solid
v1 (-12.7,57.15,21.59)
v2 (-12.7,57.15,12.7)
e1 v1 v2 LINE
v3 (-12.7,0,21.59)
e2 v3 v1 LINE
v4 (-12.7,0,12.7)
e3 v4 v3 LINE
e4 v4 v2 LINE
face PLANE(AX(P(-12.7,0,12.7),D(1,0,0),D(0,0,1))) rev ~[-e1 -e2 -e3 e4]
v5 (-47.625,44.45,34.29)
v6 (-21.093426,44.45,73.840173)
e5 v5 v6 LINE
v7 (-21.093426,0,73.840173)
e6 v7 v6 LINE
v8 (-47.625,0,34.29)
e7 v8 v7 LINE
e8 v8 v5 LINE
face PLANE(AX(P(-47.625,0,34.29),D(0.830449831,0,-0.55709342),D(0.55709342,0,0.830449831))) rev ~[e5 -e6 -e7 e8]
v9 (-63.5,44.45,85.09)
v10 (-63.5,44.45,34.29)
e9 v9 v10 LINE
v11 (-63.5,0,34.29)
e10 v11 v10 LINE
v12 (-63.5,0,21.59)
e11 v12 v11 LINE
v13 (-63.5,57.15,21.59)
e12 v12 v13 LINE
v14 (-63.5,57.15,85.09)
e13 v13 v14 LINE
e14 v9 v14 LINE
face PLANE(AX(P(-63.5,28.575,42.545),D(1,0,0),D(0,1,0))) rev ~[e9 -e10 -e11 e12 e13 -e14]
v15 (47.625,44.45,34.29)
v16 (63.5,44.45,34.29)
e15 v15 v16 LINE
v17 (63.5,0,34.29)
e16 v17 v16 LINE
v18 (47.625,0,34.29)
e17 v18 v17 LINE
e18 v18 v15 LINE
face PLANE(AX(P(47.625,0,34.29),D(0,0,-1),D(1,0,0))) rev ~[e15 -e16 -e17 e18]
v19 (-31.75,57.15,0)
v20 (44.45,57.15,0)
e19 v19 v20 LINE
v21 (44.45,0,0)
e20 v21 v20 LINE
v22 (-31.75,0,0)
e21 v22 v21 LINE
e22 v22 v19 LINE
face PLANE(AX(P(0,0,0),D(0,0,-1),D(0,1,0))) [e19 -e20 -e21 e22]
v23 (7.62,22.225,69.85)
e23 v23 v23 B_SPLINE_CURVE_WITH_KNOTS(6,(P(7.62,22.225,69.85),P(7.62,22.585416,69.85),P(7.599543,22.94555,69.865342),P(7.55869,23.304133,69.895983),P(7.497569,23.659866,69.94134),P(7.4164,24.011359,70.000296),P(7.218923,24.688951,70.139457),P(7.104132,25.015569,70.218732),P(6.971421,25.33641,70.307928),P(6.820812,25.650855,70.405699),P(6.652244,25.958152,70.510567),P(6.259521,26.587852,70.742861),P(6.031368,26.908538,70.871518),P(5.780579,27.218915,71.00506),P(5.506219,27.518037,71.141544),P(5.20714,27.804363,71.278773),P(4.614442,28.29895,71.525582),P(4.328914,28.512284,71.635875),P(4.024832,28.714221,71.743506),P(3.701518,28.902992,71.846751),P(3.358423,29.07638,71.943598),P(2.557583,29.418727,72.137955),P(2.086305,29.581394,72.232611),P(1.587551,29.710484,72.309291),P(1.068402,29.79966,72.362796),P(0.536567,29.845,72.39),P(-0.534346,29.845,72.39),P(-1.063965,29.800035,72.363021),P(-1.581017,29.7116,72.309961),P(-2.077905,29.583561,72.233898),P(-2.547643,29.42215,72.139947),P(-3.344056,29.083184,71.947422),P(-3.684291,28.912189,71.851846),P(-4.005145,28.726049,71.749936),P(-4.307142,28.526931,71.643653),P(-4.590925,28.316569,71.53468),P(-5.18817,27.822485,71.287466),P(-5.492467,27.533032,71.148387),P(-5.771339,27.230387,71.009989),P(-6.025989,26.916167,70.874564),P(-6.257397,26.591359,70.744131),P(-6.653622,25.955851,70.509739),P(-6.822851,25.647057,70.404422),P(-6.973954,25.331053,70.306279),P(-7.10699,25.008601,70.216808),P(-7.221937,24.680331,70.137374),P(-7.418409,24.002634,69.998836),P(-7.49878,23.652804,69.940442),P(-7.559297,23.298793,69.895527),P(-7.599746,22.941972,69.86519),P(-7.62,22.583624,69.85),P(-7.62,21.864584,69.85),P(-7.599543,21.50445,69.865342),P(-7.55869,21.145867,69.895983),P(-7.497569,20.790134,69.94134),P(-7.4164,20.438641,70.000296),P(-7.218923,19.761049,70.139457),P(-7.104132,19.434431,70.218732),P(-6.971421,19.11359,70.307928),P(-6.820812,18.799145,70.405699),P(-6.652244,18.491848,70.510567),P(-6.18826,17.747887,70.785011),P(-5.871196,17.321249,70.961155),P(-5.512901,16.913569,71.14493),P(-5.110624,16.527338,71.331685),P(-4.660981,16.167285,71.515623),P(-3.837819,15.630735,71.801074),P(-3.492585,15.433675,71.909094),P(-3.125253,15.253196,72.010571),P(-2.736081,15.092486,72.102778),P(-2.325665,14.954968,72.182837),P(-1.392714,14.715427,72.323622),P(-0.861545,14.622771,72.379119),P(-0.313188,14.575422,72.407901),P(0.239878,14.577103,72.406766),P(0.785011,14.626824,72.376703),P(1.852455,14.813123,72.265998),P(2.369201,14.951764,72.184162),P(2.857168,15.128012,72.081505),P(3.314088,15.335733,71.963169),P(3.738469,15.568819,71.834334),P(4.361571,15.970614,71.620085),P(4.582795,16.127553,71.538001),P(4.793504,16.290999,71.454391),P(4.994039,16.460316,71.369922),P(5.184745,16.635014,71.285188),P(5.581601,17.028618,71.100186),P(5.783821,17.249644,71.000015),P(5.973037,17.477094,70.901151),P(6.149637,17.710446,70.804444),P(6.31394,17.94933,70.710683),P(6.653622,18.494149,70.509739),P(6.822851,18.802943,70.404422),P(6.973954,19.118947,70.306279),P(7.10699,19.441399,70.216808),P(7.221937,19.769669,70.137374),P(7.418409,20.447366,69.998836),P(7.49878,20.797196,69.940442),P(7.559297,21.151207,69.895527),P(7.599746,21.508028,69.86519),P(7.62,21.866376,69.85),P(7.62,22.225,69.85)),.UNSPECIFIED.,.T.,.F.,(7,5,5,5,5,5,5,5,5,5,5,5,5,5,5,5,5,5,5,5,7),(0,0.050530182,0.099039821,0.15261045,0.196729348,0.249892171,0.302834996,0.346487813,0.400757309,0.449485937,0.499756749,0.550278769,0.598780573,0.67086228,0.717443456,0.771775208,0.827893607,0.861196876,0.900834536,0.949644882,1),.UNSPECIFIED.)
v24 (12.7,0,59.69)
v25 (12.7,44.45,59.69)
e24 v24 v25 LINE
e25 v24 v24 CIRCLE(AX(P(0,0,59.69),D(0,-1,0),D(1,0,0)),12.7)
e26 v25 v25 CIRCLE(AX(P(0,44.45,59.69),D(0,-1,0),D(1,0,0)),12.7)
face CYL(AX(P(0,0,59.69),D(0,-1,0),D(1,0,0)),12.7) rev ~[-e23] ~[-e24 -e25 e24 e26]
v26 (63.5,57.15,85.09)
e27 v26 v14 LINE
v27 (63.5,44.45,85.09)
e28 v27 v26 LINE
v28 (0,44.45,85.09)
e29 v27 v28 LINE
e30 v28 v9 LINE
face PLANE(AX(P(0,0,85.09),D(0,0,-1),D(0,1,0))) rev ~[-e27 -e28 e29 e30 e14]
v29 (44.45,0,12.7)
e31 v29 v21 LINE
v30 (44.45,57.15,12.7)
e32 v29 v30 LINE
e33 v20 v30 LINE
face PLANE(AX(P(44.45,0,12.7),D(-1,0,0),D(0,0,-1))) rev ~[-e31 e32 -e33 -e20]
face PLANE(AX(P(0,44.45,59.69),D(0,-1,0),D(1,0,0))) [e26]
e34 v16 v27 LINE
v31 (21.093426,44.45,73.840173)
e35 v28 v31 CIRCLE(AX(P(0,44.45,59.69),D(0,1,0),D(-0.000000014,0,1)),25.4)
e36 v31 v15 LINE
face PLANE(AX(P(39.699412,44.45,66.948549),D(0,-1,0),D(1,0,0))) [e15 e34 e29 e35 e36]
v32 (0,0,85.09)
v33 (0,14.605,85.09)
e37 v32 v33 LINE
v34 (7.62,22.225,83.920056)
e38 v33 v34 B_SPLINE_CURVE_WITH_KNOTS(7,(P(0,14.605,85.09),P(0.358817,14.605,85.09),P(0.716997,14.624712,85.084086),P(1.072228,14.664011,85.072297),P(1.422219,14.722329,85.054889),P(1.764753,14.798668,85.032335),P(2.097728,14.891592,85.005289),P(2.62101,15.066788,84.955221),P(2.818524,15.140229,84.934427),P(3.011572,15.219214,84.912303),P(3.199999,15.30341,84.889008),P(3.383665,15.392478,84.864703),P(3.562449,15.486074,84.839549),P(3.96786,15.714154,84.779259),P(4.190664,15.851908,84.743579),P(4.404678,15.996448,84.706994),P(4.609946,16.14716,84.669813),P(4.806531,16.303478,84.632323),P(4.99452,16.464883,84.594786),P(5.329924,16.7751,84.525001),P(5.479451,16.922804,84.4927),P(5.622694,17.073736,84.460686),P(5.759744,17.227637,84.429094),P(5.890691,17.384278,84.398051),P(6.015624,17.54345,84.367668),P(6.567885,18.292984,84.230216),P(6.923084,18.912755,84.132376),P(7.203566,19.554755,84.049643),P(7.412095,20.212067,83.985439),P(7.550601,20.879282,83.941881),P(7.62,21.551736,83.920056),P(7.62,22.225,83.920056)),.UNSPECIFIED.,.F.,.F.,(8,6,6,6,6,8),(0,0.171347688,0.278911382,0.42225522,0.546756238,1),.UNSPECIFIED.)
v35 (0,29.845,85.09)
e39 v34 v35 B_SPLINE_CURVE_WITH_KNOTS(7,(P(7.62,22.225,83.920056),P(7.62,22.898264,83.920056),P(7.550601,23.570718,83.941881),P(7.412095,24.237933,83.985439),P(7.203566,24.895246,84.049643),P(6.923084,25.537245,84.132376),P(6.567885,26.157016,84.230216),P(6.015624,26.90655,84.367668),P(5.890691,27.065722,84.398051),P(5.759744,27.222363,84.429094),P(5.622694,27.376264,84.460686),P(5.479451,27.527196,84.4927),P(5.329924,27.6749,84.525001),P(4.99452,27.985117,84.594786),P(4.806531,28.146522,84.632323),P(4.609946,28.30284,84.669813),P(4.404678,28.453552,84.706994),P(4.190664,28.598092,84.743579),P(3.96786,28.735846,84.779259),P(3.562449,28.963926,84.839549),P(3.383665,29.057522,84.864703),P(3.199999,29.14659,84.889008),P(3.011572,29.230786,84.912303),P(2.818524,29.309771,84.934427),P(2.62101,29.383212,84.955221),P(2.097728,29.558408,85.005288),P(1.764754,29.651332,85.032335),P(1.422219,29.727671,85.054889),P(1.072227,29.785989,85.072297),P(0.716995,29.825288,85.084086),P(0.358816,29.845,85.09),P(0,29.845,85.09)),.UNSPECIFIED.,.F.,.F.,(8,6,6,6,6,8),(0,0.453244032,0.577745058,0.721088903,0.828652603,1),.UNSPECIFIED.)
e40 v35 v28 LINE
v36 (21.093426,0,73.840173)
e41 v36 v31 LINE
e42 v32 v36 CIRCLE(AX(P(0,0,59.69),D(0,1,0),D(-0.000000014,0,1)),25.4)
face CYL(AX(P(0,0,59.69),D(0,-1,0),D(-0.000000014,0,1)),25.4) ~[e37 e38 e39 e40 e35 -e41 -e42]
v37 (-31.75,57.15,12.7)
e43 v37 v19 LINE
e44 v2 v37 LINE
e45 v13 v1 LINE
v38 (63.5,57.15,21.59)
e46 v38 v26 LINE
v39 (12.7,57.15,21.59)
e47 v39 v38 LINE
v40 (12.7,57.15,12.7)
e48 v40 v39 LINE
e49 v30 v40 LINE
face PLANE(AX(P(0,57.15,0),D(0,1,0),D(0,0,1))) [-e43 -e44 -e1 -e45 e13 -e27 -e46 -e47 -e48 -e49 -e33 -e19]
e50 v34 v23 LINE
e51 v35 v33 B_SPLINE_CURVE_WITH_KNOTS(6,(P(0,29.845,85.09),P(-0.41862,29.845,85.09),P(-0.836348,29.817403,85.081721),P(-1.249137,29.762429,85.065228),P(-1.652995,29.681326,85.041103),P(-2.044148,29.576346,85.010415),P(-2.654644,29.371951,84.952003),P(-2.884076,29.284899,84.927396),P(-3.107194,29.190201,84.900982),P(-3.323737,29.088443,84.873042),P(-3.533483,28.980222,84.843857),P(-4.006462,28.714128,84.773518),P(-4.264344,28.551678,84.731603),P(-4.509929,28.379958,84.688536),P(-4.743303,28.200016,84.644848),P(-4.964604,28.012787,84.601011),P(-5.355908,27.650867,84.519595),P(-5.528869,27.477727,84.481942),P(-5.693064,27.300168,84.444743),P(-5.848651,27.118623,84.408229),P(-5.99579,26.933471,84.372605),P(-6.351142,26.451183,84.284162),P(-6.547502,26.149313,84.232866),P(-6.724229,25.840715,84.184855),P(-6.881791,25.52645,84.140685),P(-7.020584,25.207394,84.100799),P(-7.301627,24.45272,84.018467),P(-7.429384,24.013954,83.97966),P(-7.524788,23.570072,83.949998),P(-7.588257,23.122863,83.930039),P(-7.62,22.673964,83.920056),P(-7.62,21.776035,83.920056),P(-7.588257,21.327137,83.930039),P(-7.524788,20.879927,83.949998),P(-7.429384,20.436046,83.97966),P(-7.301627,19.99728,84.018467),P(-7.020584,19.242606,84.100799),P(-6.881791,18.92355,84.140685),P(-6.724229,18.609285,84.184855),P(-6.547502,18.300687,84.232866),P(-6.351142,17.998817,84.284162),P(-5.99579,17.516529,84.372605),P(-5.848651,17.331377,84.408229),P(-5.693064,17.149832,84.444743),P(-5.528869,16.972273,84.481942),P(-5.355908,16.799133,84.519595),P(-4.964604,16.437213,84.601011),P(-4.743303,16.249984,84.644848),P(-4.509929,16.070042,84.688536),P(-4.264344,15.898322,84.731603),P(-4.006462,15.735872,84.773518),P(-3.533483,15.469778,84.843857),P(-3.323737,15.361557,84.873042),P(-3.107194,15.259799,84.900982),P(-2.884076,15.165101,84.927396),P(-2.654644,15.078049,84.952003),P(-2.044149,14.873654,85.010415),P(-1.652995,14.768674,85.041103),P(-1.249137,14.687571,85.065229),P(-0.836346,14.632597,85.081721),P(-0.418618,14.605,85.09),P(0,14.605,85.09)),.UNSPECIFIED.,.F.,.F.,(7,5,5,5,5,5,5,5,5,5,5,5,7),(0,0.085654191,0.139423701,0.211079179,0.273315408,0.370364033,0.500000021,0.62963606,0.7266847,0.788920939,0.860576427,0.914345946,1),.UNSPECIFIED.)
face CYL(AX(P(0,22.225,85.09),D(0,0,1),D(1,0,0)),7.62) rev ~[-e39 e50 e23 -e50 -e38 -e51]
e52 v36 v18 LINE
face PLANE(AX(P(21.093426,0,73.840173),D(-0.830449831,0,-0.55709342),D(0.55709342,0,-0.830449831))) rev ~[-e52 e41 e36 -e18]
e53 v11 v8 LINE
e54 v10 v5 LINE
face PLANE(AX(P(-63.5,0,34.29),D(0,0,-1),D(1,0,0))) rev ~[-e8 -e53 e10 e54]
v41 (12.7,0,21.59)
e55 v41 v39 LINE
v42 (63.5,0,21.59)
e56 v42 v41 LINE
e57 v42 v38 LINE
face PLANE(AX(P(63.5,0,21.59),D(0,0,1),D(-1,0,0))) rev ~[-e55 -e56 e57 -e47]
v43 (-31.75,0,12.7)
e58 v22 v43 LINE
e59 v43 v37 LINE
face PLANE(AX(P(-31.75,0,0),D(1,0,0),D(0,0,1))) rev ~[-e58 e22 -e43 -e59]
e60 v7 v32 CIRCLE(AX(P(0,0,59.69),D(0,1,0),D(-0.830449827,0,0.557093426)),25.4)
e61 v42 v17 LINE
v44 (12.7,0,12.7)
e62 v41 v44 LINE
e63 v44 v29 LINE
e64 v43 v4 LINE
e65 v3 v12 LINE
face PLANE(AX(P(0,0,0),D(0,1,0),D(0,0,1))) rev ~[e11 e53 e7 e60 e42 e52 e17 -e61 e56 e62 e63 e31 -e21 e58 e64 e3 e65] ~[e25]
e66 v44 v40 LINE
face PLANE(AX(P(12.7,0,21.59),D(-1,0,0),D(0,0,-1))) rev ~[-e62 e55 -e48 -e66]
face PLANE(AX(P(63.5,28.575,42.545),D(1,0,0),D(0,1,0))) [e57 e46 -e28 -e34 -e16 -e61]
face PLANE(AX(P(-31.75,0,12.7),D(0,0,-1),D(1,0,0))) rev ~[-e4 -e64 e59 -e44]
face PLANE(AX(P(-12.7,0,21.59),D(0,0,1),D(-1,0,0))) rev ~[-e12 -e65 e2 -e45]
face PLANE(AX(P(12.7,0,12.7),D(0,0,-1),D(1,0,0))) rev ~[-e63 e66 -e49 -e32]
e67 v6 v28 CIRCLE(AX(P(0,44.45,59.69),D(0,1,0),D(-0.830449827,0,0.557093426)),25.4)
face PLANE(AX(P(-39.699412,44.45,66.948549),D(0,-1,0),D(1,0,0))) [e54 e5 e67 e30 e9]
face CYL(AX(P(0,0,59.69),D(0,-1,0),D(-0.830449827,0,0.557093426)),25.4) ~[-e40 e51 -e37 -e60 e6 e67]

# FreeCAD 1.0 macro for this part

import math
import FreeCAD as App
import Part
import Sketcher
from FreeCAD import Vector
Q = App.Units.Quantity


def add_polygon(sketch, points):
    """Adds a closed chain of lines whose ends are joined by coincident constraints."""
    first, n = sketch.GeometryCount, len(points)
    for a, b in zip(points, points[1:] + points[:1]):
        sketch.addGeometry(Part.LineSegment(App.Vector(*a, 0), App.Vector(*b, 0)), False)
    for i in range(n):
        sketch.addConstraint(Sketcher.Constraint("Coincident", first + i, 2, first + (i + 1) % n, 1))

doc = App.newDocument("Part")
body = doc.addObject("PartDesign::Body", "Body")

# Sketch on YZ plane
sketch1 = doc.addObject("Sketcher::SketchObject", "Sketch")
body.addObject(sketch1)
sketch1.AttachmentSupport = (doc.YZ_Plane, [""])
sketch1.MapMode = "FlatFace"
add_polygon(sketch1, [(0, 85), (0, 0), (57, 0), (57, 85)])  # lines 0-3
sketch1.addConstraint(Sketcher.Constraint("Vertical", 0))
sketch1.addConstraint(Sketcher.Constraint("Horizontal", 1))
sketch1.addConstraint(Sketcher.Constraint("Vertical", 2))
sketch1.addConstraint(Sketcher.Constraint("Horizontal", 3))
sketch1.addConstraint(Sketcher.Constraint("Coincident", 0, 2, -1, 1))
sketch1.addConstraint(Sketcher.Constraint("DistanceX", 1, 1, 1, 2, Q("2.25 in")))
sketch1.addConstraint(Sketcher.Constraint("DistanceY", 0, 2, 0, 1, Q("3.35 in")))
pad1 = doc.addObject("PartDesign::Pad", "Pad")
body.addObject(pad1)
pad1.Profile = sketch1
pad1.Length = Q("5 in")
pad1.Midplane = True

# Sketch on XZ plane
sketch2 = doc.addObject("Sketcher::SketchObject", "Sketch001")
body.addObject(sketch2)
sketch2.AttachmentSupport = (doc.XZ_Plane, [""])
sketch2.MapMode = "FlatFace"
sketch2.addGeometry(Part.LineSegment(Vector(-64, 85, 0), Vector(-64, 34, 0)), False)
sketch2.addGeometry(Part.LineSegment(Vector(-64, 34, 0), Vector(-48, 34, 0)), False)
sketch2.addGeometry(Part.LineSegment(Vector(-48, 34, 0), Vector(-21, 74, 0)), False)
sketch2.addGeometry(Part.ArcOfCircle(Part.Circle(Vector(0, 60, 0), Vector(0, 0, 1), 25), math.radians(90), math.radians(146)), False)
sketch2.addGeometry(Part.LineSegment(Vector(0, 85, 0), Vector(-64, 85, 0)), False)
sketch2.addGeometry(Part.LineSegment(Vector(48, 34, 0), Vector(64, 34, 0)), False)
sketch2.addGeometry(Part.LineSegment(Vector(64, 34, 0), Vector(64, 85, 0)), False)
sketch2.addGeometry(Part.LineSegment(Vector(64, 85, 0), Vector(0, 85, 0)), False)
sketch2.addGeometry(Part.ArcOfCircle(Part.Circle(Vector(0, 60, 0), Vector(0, 0, 1), 25), math.radians(34), math.radians(90)), False)
sketch2.addGeometry(Part.LineSegment(Vector(21, 74, 0), Vector(48, 34, 0)), False)
sketch2.addGeometry(Part.Circle(Vector(0, 60, 0), Vector(0, 0, 1), 13), False)
sketch2.addConstraint(Sketcher.Constraint("Coincident", 0, 2, 1, 1))
sketch2.addConstraint(Sketcher.Constraint("Coincident", 1, 2, 2, 1))
sketch2.addConstraint(Sketcher.Constraint("Tangent", 2, 2, 3, 2))
sketch2.addConstraint(Sketcher.Constraint("Tangent", 3, 1, 4, 1))
sketch2.addConstraint(Sketcher.Constraint("Coincident", 4, 2, 0, 1))
sketch2.addConstraint(Sketcher.Constraint("Coincident", 5, 2, 6, 1))
sketch2.addConstraint(Sketcher.Constraint("Coincident", 6, 2, 7, 1))
sketch2.addConstraint(Sketcher.Constraint("Tangent", 7, 2, 8, 2))
sketch2.addConstraint(Sketcher.Constraint("Tangent", 8, 1, 9, 1))
sketch2.addConstraint(Sketcher.Constraint("Coincident", 9, 2, 5, 1))
sketch2.addConstraint(Sketcher.Constraint("Vertical", 0))
sketch2.addConstraint(Sketcher.Constraint("Horizontal", 1))
sketch2.addConstraint(Sketcher.Constraint("Horizontal", 4))
sketch2.addConstraint(Sketcher.Constraint("Horizontal", 5))
sketch2.addConstraint(Sketcher.Constraint("Vertical", 6))
sketch2.addConstraint(Sketcher.Constraint("Horizontal", 7))
sketch2.addConstraint(Sketcher.Constraint("Coincident", 8, 3, 3, 3))
sketch2.addConstraint(Sketcher.Constraint("Coincident", 10, 3, 3, 3))
sketch2.addConstraint(Sketcher.Constraint("Equal", 3, 8))
sketch2.addConstraint(Sketcher.Constraint("Symmetric", 0, 2, 5, 2, -2))
sketch2.addConstraint(Sketcher.Constraint("Symmetric", 2, 2, 8, 1, -2))
sketch2.addConstraint(Sketcher.Constraint("Diameter", 10, Q("1 in")))
sketch2.addConstraint(Sketcher.Constraint("Radius", 3, Q("1 in")))
sketch2.addConstraint(Sketcher.Constraint("DistanceY", 0, 2, 0, 1, Q("2 in")))
sketch2.addConstraint(Sketcher.Constraint("DistanceX", 4, 2, 4, 1, Q("2.5 in")))
sketch2.addConstraint(Sketcher.Constraint("DistanceX", 1, 1, 1, 2, Q("0.625 in")))
sketch2.addConstraint(Sketcher.Constraint("DistanceY", -1, 1, 3, 3, Q("2.35 in")))
pocket1 = doc.addObject("PartDesign::Pocket", "Pocket")
body.addObject(pocket1)
pocket1.Profile = sketch2
pocket1.Length = Q("1.75 in")

# Sketch on XY plane
sketch3 = doc.addObject("Sketcher::SketchObject", "Sketch002")
body.addObject(sketch3)
sketch3.AttachmentSupport = (doc.XY_Plane, [""])
sketch3.MapMode = "FlatFace"
sketch3.AttachmentOffset = App.Placement(Vector(0, 0, 3.35 * 25.4), App.Rotation())
sketch3.addGeometry(Part.Circle(Vector(0, 22, 0), Vector(0, 0, 1), 8), False)
sketch3.addConstraint(Sketcher.Constraint("PointOnObject", 0, 3, -2))
sketch3.addConstraint(Sketcher.Constraint("Diameter", 0, Q("0.6 in")))
sketch3.addConstraint(Sketcher.Constraint("DistanceY", -1, 1, 0, 3, Q("0.875 in")))
pocket2 = doc.addObject("PartDesign::Pocket", "Pocket001")
body.addObject(pocket2)
pocket2.Profile = sketch3
pocket2.Length = Q("1 in")

# Sketch on XZ plane
sketch4 = doc.addObject("Sketcher::SketchObject", "Sketch003")
body.addObject(sketch4)
sketch4.AttachmentSupport = (doc.XZ_Plane, [""])
sketch4.MapMode = "FlatFace"
add_polygon(sketch4, [(-64, 0), (-32, 0), (-32, 13), (-13, 13), (-13, 22), (-64, 22)])  # lines 0-5
add_polygon(sketch4, [(44, 13), (44, 0), (64, 0), (64, 22), (13, 22), (13, 13)])  # lines 6-11
sketch4.addConstraint(Sketcher.Constraint("Horizontal", 0))
sketch4.addConstraint(Sketcher.Constraint("Vertical", 1))
sketch4.addConstraint(Sketcher.Constraint("Horizontal", 2))
sketch4.addConstraint(Sketcher.Constraint("Vertical", 3))
sketch4.addConstraint(Sketcher.Constraint("Horizontal", 4))
sketch4.addConstraint(Sketcher.Constraint("Vertical", 5))
sketch4.addConstraint(Sketcher.Constraint("Vertical", 6))
sketch4.addConstraint(Sketcher.Constraint("Horizontal", 7))
sketch4.addConstraint(Sketcher.Constraint("Vertical", 8))
sketch4.addConstraint(Sketcher.Constraint("Horizontal", 9))
sketch4.addConstraint(Sketcher.Constraint("Vertical", 10))
sketch4.addConstraint(Sketcher.Constraint("Horizontal", 11))
sketch4.addConstraint(Sketcher.Constraint("Symmetric", 5, 2, 7, 2, -1, 1))
sketch4.addConstraint(Sketcher.Constraint("Symmetric", 3, 2, 9, 2, -2))
sketch4.addConstraint(Sketcher.Constraint("PointOnObject", 0, 2, -1))
sketch4.addConstraint(Sketcher.Constraint("Horizontal", 2, 2, 10, 2))
sketch4.addConstraint(Sketcher.Constraint("Equal", 2, 7))
sketch4.addConstraint(Sketcher.Constraint("DistanceX", 4, 2, 4, 1, Q("2 in")))
sketch4.addConstraint(Sketcher.Constraint("DistanceY", 1, 1, 1, 2, Q("0.5 in")))
sketch4.addConstraint(Sketcher.Constraint("DistanceX", 0, 2, 6, 2, Q("3 in")))
sketch4.addConstraint(Sketcher.Constraint("DistanceX", 0, 1, 0, 2, Q("1.25 in")))
sketch4.addConstraint(Sketcher.Constraint("DistanceY", 3, 1, 3, 2, Q("0.35 in")))
pocket3 = doc.addObject("PartDesign::Pocket", "Pocket002")
body.addObject(pocket3)
pocket3.Profile = sketch4
pocket3.Type = "ThroughAll"

doc.recompute()
